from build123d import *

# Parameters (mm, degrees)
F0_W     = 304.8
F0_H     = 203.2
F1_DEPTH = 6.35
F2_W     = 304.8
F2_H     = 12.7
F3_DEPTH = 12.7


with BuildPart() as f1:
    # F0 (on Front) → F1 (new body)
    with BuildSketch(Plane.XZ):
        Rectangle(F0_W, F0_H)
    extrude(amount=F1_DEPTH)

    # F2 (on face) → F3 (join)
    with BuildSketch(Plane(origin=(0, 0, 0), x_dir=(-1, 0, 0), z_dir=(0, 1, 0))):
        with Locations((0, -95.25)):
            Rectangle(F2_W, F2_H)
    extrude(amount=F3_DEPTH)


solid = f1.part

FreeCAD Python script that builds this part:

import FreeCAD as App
import Part
import Sketcher
Q = App.Units.Quantity


def add_polygon(sketch, points):
    """Adds a closed chain of lines whose ends are joined by coincident constraints."""
    first, n = sketch.GeometryCount, len(points)
    for a, b in zip(points, points[1:] + points[:1]):
        sketch.addGeometry(Part.LineSegment(App.Vector(*a, 0), App.Vector(*b, 0)), False)
    for i in range(n):
        sketch.addConstraint(Sketcher.Constraint("Coincident", first + i, 2, first + (i + 1) % n, 1))

doc = App.newDocument("Part")
body = doc.addObject("PartDesign::Body", "Body")

# Sketch on XZ plane
sketch1 = body.newObject("Sketcher::SketchObject", "Sketch")
sketch1.AttachmentSupport = (doc.getObject("XZ_Plane"), [""])
sketch1.MapMode = "FlatFace"
add_polygon(sketch1, [(-152, 102), (-152, -102), (152, -102), (152, 102)])  # lines 0-3
sketch1.addConstraint([
    Sketcher.Constraint("Vertical", 0),
    Sketcher.Constraint("Horizontal", 1),
    Sketcher.Constraint("Vertical", 2),
    Sketcher.Constraint("Horizontal", 3),
    Sketcher.Constraint("Symmetric", 0, 2, 2, 2, -1, 1),
    Sketcher.Constraint("DistanceX", 1, 1, 1, 2, Q("12 in")),
    Sketcher.Constraint("DistanceY", 0, 2, 0, 1, Q("8 in")),
])
pad1 = body.newObject("PartDesign::Pad", "Pad")
pad1.Profile = sketch1
pad1.Length = Q("0.25 in")

# Sketch on XZ plane
sketch2 = body.newObject("Sketcher::SketchObject", "Sketch001")
sketch2.AttachmentSupport = (doc.getObject("XZ_Plane"), [""])
sketch2.MapMode = "FlatFace"
add_polygon(sketch2, [(152, -89), (152, -102), (-152, -102), (-152, -89)])  # lines 0-3
sketch2.addConstraint([
    Sketcher.Constraint("Vertical", 0),
    Sketcher.Constraint("Horizontal", 1),
    Sketcher.Constraint("Vertical", 2),
    Sketcher.Constraint("Horizontal", 3),
    Sketcher.Constraint("DistanceX", 1, 2, 1, 1, Q("12 in")),
    Sketcher.Constraint("DistanceY", 0, 2, 0, 1, Q("0.5 in")),
    Sketcher.Constraint("DistanceX", -1, 1, 0, 2, Q("6 in")),
    Sketcher.Constraint("DistanceY", 0, 2, -1, 1, Q("4 in")),
])
pad2 = body.newObject("PartDesign::Pad", "Pad001")
pad2.Profile = sketch2
pad2.Length = Q("0.5 in")
pad2.Reversed = True

doc.recompute()
